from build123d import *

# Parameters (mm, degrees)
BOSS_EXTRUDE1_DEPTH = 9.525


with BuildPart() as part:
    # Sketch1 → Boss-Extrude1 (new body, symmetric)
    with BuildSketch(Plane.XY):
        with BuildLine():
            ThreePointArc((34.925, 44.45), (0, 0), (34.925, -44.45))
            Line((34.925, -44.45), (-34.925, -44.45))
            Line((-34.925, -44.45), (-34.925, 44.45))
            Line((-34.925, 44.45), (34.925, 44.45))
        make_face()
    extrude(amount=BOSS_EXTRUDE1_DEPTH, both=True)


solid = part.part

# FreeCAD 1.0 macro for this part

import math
import FreeCAD as App
import Part
import Sketcher
Q = App.Units.Quantity

doc = App.newDocument("Part")
params = doc.addObject("Spreadsheet::Sheet", "Params")
for row, (alias, value) in enumerate([
    ("sketch1_height", "3.5 in"),
    ("sketch1_width", "2.75 in"),
    ("pad1_length", "0.75 in"),
], start=1):
    params.set(f"A{row}", alias)
    params.set(f"B{row}", "=" + value)
    params.setAlias(f"B{row}", alias)

body = doc.addObject("PartDesign::Body", "Body")

# Sketch on XY plane
sketch1 = body.newObject("Sketcher::SketchObject", "Sketch")
sketch1.AttachmentSupport = (doc.getObject("XY_Plane"), [""])
sketch1.MapMode = "FlatFace"
sketch1.addGeometry([
    Part.ArcOfCircle(Part.Circle(App.Vector(45.748864, 0, 0), App.Vector(0, 0, 1), 45.748864), math.radians(103.685547), math.radians(256.314453)),
    Part.LineSegment(App.Vector(34.925, 44.45, 0), App.Vector(-34.925, 44.45, 0)),
    Part.LineSegment(App.Vector(-34.925, 44.45, 0), App.Vector(-34.925, -44.45, 0)),
    Part.LineSegment(App.Vector(-34.925, -44.45, 0), App.Vector(34.925, -44.45, 0)),
], False)
sketch1.addConstraint([
    Sketcher.Constraint("Coincident", 0, 1, 1, 1),
    Sketcher.Constraint("Coincident", 1, 2, 2, 1),
    Sketcher.Constraint("Coincident", 2, 2, 3, 1),
    Sketcher.Constraint("Coincident", 3, 2, 0, 2),
    Sketcher.Constraint("Horizontal", 1),
    Sketcher.Constraint("Vertical", 2),
    Sketcher.Constraint("Horizontal", 3),
    Sketcher.Constraint("Symmetric", 0, 1, 2, 2, -1, 1),
    Sketcher.Constraint("PointOnObject", 0, 3, -1),
    Sketcher.Constraint("DistanceY", 2, 2, 2, 1, Q("3.5 in")),
    Sketcher.Constraint("DistanceX", 1, 2, 1, 1, Q("2.75 in")),
    Sketcher.Constraint("Radius", 0, 45.748864),
])
sketch1.setExpression("Constraints[9]", "Params.sketch1_height")
sketch1.setExpression("Constraints[10]", "Params.sketch1_width")
pad1 = body.newObject("PartDesign::Pad", "Pad")
pad1.Profile = sketch1
pad1.setExpression("Length", "Params.pad1_length")
pad1.Midplane = True

doc.recompute()
